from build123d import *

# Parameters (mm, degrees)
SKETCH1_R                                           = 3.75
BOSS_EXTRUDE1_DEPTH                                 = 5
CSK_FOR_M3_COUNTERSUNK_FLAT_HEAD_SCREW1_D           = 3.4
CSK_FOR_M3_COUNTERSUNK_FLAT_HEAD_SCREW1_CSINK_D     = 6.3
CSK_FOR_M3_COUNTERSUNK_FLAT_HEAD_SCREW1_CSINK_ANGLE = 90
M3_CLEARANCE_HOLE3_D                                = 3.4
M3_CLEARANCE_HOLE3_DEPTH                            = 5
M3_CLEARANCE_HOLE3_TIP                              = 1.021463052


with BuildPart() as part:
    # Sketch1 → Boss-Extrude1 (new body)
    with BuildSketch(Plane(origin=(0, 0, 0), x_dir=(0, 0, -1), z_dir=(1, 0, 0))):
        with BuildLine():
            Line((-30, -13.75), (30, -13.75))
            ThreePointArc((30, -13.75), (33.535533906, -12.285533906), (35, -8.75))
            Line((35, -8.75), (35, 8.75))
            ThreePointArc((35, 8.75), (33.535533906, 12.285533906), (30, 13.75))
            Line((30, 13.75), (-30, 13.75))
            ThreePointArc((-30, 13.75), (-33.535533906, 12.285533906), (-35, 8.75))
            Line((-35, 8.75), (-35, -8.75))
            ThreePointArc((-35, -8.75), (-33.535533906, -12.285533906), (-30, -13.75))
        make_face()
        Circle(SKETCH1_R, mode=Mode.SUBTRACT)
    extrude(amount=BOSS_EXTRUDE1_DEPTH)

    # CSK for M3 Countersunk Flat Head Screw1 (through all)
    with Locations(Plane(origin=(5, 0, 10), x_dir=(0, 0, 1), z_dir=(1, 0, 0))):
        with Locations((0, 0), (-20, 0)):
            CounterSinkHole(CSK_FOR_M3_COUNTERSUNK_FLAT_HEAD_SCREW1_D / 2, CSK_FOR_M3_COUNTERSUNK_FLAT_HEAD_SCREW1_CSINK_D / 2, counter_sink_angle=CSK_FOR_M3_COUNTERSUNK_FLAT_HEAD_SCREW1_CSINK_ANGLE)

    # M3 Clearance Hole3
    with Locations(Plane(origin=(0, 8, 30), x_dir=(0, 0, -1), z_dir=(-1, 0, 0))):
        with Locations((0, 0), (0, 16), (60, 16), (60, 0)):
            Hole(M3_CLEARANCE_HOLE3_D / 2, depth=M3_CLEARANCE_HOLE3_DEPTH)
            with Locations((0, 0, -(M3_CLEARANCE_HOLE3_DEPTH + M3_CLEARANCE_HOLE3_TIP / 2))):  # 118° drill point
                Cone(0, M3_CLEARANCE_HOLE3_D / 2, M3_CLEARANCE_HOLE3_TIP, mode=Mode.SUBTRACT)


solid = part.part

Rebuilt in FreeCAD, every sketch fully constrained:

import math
import FreeCAD as App
import Part
import Sketcher
from FreeCAD import Vector
Q = App.Units.Quantity

doc = App.newDocument("Part")
params = doc.addObject("Spreadsheet::Sheet", "Params")
for row, (alias, value) in enumerate([
    ("sketch1_radius", "5 mm"),
    ("sketch1_diameter", "7.5 mm"),
    ("sketch1_height", "60 mm"),
    ("sketch1_width", "17.5 mm"),
    ("pad1_length", "5 mm"),
    ("sketch2_diameter", "3.4 mm"),
    ("hole_diameter", "3.4 mm"),
    ("hole_csink_diameter", "6.3 mm"),
    ("sketch3_diameter", "3.4 mm"),
    ("hole2_diameter", "3.4 mm"),
    ("hole2_depth", "5 mm"),
], start=1):
    params.set(f"A{row}", alias)
    params.set(f"B{row}", "=" + value)
    params.setAlias(f"B{row}", alias)

body = doc.addObject("PartDesign::Body", "Body")

sketch1 = body.newObject("Sketcher::SketchObject", "Sketch")
sketch1.AttachmentSupport = (doc.getObject("YZ_Plane"), [""])
sketch1.MapMode = "FlatFace"
sketch1.addGeometry([
    Part.LineSegment(Vector(-13.8, 30, 0), Vector(-13.8, -30, 0)),
    Part.ArcOfCircle(Part.Circle(Vector(-8.8, -30, 0), Vector(0, 0, 1), 5), math.radians(180), math.radians(270)),
    Part.LineSegment(Vector(-8.8, -35, 0), Vector(8.8, -35, 0)),
    Part.ArcOfCircle(Part.Circle(Vector(8.8, -30, 0), Vector(0, 0, 1), 5), math.radians(-90), math.radians(0)),
    Part.LineSegment(Vector(13.8, -30, 0), Vector(13.8, 30, 0)),
    Part.ArcOfCircle(Part.Circle(Vector(8.8, 30, 0), Vector(0, 0, 1), 5), math.radians(0), math.radians(90)),
    Part.LineSegment(Vector(8.8, 35, 0), Vector(-8.8, 35, 0)),
    Part.ArcOfCircle(Part.Circle(Vector(-8.8, 30, 0), Vector(0, 0, 1), 5), math.radians(90), math.radians(180)),
    Part.Circle(Vector(0, 0, 0), Vector(0, 0, 1), 3.8),
], False)
sketch1.addConstraint([
    Sketcher.Constraint("Tangent", 0, 2, 1, 1),
    Sketcher.Constraint("Tangent", 1, 2, 2, 1),
    Sketcher.Constraint("Tangent", 2, 2, 3, 1),
    Sketcher.Constraint("Tangent", 3, 2, 4, 1),
    Sketcher.Constraint("Tangent", 4, 2, 5, 1),
    Sketcher.Constraint("Tangent", 5, 2, 6, 1),
    Sketcher.Constraint("Tangent", 6, 2, 7, 1),
    Sketcher.Constraint("Tangent", 7, 2, 0, 1),
    Sketcher.Constraint("Vertical", 0),
    Sketcher.Constraint("Horizontal", 2),
    Sketcher.Constraint("Vertical", 4),
    Sketcher.Constraint("Horizontal", 6),
    Sketcher.Constraint("Coincident", 8, 3, -1, 1),
    Sketcher.Constraint("Equal", 1, 3),
    Sketcher.Constraint("Equal", 3, 5),
    Sketcher.Constraint("Equal", 5, 7),
    Sketcher.Constraint("Symmetric", 1, 3, 5, 3, -1, 1),
    Sketcher.Constraint("Radius", 1, Q("5 mm")),
    Sketcher.Constraint("Diameter", 8, Q("7.5 mm")),
    Sketcher.Constraint("DistanceY", 0, 2, 0, 1, Q("60 mm")),
    Sketcher.Constraint("DistanceX", 2, 1, 2, 2, Q("17.5 mm")),
])
sketch1.setExpression("Constraints[17]", "Params.sketch1_radius")
sketch1.setExpression("Constraints[18]", "Params.sketch1_diameter")
sketch1.setExpression("Constraints[19]", "Params.sketch1_height")
sketch1.setExpression("Constraints[20]", "Params.sketch1_width")
pad1 = body.newObject("PartDesign::Pad", "Pad")
pad1.Profile = sketch1
pad1.setExpression("Length", "Params.pad1_length")

sketch2 = body.newObject("Sketcher::SketchObject", "Sketch001")
sketch2.AttachmentSupport = (doc.getObject("YZ_Plane"), [""])
sketch2.MapMode = "FlatFace"
sketch2.AttachmentOffset = App.Placement(Vector(0, 0, 5), App.Rotation())
sketch2.addGeometry([
    Part.Circle(Vector(0, 10, 0), Vector(0, 0, 1), 1.7),
    Part.Circle(Vector(0, -10, 0), Vector(0, 0, 1), 1.7),
], False)
sketch2.addConstraint([
    Sketcher.Constraint("Equal", 0, 1),
    Sketcher.Constraint("Symmetric", 0, 3, 1, 3, -1, 1),
    Sketcher.Constraint("PointOnObject", 0, 3, -2),
    Sketcher.Constraint("Diameter", 0, Q("3.4 mm")),
    Sketcher.Constraint("DistanceY", -1, 1, 0, 3, Q("10 mm")),
])
sketch2.setExpression("Constraints[3]", "Params.sketch2_diameter")
doc.recompute()
hole = body.newObject("PartDesign::Hole", "Hole")
hole.Profile = sketch2
hole.ThreadType = "None"
hole.setExpression("Diameter", "Params.hole_diameter")
hole.DepthType = "ThroughAll"
hole.HoleCutType = "Countersink"
hole.setExpression("HoleCutDiameter", "Params.hole_csink_diameter")
hole.HoleCutCountersinkAngle = 90

sketch3 = body.newObject("Sketcher::SketchObject", "Sketch002")
sketch3.AttachmentSupport = (doc.getObject("YZ_Plane"), [""])
sketch3.MapMode = "FlatFace"
sketch3.addGeometry([
    Part.Circle(Vector(8, 30, 0), Vector(0, 0, 1), 1.7),
    Part.Circle(Vector(-8, 30, 0), Vector(0, 0, 1), 1.7),
    Part.Circle(Vector(-8, -30, 0), Vector(0, 0, 1), 1.7),
    Part.Circle(Vector(8, -30, 0), Vector(0, 0, 1), 1.7),
], False)
sketch3.addConstraint([
    Sketcher.Constraint("Equal", 0, 1),
    Sketcher.Constraint("Equal", 1, 2),
    Sketcher.Constraint("Equal", 2, 3),
    Sketcher.Constraint("Symmetric", 0, 3, 2, 3, -1, 1),
    Sketcher.Constraint("Symmetric", 1, 3, 3, 3, -1, 1),
    Sketcher.Constraint("Symmetric", 0, 3, 1, 3, -2),
    Sketcher.Constraint("Diameter", 0, Q("3.4 mm")),
    Sketcher.Constraint("DistanceX", -1, 1, 0, 3, Q("8 mm")),
    Sketcher.Constraint("DistanceY", -1, 1, 0, 3, Q("30 mm")),
])
sketch3.setExpression("Constraints[6]", "Params.sketch3_diameter")
doc.recompute()
hole2 = body.newObject("PartDesign::Hole", "Hole001")
hole2.Profile = sketch3
hole2.ThreadType = "None"
hole2.setExpression("Diameter", "Params.hole2_diameter")
hole2.DepthType = "Dimension"
hole2.setExpression("Depth", "Params.hole2_depth")
hole2.DrillPoint = "Angled"
hole2.DrillPointAngle = 118
hole2.Reversed = True

doc.recompute()
